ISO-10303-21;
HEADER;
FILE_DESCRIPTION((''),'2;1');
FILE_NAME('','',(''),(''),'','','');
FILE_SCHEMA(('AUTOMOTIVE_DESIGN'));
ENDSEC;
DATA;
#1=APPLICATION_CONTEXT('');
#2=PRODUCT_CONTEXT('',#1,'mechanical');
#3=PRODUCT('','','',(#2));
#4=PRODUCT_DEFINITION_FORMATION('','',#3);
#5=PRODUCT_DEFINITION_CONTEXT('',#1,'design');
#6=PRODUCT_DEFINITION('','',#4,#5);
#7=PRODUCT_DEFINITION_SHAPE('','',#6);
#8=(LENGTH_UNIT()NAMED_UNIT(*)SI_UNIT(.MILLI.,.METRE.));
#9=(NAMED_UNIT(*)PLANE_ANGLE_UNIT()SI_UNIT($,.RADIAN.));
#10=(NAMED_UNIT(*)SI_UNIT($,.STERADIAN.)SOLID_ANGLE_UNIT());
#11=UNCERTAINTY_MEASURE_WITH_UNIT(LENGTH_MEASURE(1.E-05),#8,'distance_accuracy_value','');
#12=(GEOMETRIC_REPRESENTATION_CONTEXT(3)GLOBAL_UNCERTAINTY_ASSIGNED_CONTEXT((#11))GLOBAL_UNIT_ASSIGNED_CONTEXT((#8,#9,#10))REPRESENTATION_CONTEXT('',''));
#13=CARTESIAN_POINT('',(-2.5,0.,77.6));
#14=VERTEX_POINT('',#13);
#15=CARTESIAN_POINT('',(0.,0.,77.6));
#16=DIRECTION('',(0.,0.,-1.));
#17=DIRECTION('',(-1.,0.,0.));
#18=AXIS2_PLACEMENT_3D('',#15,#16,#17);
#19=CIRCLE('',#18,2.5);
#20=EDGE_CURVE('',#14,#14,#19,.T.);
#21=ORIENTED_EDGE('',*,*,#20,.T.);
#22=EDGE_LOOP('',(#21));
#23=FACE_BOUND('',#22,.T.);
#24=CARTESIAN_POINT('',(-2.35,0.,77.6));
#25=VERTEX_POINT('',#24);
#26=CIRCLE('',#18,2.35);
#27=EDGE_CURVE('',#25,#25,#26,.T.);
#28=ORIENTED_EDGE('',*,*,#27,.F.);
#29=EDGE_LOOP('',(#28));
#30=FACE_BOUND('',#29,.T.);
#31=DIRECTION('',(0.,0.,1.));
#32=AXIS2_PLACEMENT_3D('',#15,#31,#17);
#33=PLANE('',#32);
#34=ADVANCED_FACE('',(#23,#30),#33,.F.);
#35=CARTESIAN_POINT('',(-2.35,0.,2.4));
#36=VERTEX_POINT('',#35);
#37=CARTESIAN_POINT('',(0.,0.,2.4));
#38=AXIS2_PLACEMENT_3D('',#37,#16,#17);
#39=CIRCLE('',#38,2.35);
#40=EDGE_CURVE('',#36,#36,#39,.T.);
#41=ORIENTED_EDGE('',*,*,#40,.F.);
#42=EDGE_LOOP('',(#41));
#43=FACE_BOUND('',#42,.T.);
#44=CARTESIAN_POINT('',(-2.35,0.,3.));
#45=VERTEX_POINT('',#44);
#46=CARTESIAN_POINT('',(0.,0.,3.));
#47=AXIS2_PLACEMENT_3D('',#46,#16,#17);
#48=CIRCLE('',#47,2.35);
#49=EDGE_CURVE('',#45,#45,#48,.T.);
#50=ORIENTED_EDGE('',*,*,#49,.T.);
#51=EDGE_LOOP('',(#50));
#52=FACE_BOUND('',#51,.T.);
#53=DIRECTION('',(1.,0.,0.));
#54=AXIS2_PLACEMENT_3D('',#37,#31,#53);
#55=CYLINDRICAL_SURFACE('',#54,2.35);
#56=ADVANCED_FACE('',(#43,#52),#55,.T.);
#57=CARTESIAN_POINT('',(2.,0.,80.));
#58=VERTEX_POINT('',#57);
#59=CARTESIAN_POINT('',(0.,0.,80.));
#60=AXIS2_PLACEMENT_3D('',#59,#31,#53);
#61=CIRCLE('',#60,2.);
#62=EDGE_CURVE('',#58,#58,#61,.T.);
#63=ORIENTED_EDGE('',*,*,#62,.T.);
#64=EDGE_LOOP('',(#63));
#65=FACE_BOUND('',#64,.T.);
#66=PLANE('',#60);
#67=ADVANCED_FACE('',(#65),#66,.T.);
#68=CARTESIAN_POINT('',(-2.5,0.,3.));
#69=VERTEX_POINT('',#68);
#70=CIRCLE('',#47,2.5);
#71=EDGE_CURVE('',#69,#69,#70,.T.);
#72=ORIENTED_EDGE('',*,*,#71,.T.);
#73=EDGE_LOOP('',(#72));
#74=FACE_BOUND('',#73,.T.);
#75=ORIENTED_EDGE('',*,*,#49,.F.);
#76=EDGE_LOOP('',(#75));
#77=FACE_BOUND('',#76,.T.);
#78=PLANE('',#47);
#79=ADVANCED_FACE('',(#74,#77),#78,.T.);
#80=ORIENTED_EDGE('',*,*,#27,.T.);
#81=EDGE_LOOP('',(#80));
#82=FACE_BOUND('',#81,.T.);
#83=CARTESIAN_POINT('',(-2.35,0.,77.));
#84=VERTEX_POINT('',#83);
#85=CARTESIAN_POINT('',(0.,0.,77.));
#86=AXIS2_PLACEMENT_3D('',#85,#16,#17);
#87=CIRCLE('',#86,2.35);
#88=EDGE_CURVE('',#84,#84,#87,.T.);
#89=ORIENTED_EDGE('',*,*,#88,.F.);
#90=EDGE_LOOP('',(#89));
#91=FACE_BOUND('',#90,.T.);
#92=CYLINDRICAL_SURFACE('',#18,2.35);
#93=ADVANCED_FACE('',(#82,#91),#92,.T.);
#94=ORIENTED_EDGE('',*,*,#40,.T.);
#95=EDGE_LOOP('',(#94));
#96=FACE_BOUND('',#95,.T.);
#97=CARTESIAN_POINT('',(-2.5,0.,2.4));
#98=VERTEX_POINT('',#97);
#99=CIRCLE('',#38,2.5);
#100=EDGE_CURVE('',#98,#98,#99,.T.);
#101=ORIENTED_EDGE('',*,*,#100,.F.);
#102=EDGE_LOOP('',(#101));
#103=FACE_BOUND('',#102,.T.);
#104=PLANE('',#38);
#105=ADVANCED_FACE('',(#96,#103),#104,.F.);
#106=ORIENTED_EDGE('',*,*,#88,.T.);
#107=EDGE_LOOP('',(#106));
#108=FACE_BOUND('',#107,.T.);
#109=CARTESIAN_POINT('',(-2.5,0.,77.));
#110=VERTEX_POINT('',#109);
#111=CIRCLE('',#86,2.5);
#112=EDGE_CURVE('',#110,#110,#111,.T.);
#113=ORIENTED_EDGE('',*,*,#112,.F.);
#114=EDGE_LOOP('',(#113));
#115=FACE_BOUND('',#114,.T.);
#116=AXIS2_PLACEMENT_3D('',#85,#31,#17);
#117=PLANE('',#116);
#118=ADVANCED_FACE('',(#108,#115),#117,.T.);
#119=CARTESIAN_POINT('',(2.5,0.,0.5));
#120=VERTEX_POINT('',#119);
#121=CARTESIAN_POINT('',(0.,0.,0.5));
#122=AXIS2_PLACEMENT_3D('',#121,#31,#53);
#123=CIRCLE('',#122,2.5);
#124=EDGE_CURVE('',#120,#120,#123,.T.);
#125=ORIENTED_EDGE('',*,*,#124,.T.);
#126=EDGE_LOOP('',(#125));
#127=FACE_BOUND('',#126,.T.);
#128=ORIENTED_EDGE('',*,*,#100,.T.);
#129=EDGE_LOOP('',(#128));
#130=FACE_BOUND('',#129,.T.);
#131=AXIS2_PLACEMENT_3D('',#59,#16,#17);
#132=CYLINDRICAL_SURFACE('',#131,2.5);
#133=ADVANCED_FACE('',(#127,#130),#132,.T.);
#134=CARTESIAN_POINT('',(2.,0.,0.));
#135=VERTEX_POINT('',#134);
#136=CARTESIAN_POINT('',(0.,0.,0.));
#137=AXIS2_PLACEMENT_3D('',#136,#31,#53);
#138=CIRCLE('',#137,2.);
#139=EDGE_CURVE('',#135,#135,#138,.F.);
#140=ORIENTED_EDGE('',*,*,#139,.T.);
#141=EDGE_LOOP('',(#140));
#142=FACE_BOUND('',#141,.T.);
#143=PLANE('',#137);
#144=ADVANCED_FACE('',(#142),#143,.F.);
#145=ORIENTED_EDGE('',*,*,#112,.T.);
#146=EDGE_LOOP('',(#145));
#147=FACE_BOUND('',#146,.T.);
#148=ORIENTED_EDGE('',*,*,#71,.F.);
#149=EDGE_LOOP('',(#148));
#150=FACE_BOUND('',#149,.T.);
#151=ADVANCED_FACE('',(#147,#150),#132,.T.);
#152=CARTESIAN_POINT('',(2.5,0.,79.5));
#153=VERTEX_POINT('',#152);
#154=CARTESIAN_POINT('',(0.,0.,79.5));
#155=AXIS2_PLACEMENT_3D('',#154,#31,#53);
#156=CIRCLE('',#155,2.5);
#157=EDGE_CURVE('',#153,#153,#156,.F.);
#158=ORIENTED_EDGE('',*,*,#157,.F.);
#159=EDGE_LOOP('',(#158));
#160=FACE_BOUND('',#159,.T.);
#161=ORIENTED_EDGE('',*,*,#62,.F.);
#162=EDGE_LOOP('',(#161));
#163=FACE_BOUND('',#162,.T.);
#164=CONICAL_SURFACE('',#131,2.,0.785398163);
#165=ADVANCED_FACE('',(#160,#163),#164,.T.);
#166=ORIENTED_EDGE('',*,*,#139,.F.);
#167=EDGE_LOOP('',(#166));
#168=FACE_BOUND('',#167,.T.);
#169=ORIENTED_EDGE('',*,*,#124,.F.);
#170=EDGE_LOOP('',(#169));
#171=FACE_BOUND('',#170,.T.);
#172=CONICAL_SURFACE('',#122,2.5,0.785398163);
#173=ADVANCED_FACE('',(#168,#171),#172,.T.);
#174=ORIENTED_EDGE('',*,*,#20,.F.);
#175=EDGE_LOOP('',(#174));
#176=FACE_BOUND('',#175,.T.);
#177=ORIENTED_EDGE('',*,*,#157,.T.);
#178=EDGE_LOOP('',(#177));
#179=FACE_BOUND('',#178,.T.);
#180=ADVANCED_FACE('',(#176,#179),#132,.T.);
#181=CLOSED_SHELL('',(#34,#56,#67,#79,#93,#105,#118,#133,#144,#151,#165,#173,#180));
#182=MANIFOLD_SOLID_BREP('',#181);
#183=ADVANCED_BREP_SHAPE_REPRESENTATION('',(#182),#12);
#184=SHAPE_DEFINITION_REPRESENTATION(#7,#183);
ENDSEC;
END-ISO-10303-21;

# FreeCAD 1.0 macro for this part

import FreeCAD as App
import Part
import Sketcher
from FreeCAD import Vector
Q = App.Units.Quantity


def edges_at(feature, points):
    """Names of the edges that pass closest to the given points."""
    edges = feature.Shape.Edges
    near = lambda p: min(range(len(edges)), key=lambda i: edges[i].distToShape(Part.Vertex(*p))[0])
    return sorted({f"Edge{near(p) + 1}" for p in points})

doc = App.newDocument("Part")
body = doc.addObject("PartDesign::Body", "Body")

# Sketch on XY plane
sketch1 = body.newObject("Sketcher::SketchObject", "Sketch")
sketch1.AttachmentSupport = (doc.getObject("XY_Plane"), [""])
sketch1.MapMode = "FlatFace"
sketch1.addGeometry(Part.Circle(Vector(0, 0, 0), Vector(0, 0, 1), 2.5), False)
sketch1.addConstraint(Sketcher.Constraint("Coincident", 0, 3, -1, 1))
sketch1.addConstraint(Sketcher.Constraint("Diameter", 0, Q("5 mm")))
pad1 = body.newObject("PartDesign::Pad", "Pad")
pad1.Profile = sketch1
pad1.Length = 80
doc.recompute()

chamfer = body.newObject("PartDesign::Chamfer", "Chamfer")
chamfer.Base = (pad1, edges_at(pad1, [(-2.5, 0, 0), (-2.5, 0, 80)]))
chamfer.Size = 0.5

# Sketch on XY plane
sketch2 = body.newObject("Sketcher::SketchObject", "Sketch001")
sketch2.AttachmentSupport = (doc.getObject("XY_Plane"), [""])
sketch2.MapMode = "FlatFace"
sketch2.AttachmentOffset = App.Placement(Vector(0, 0, 2.4), App.Rotation())
sketch2.addGeometry(Part.Circle(Vector(0, 0, 0), Vector(0, 0, 1), 2.5), False)
sketch2.addGeometry(Part.Circle(Vector(0, 0, 0), Vector(0, 0, 1), 2.35), False)
sketch2.addConstraint(Sketcher.Constraint("Coincident", 0, 3, -1, 1))
sketch2.addConstraint(Sketcher.Constraint("Coincident", 1, 3, -1, 1))
sketch2.addConstraint(Sketcher.Constraint("Diameter", 0, Q("5 mm")))
sketch2.addConstraint(Sketcher.Constraint("Diameter", 1, Q("4.7 mm")))
pocket1 = body.newObject("PartDesign::Pocket", "Pocket")
pocket1.Profile = sketch2
pocket1.Length = 0.6
pocket1.Reversed = True
doc.recompute()

datumplane = body.newObject("PartDesign::Plane", "DatumPlane")
datumplane.AttachmentSupport = (doc.getObject("XY_Plane"), [""])
datumplane.MapMode = "FlatFace"
datumplane.AttachmentOffset = App.Placement(Vector(0, 0, 40), App.Rotation())
mirrored = body.newObject("PartDesign::Mirrored", "Mirrored")
mirrored.Originals = [pocket1]
mirrored.MirrorPlane = (datumplane, [""])
body.Tip = mirrored

doc.recompute()
